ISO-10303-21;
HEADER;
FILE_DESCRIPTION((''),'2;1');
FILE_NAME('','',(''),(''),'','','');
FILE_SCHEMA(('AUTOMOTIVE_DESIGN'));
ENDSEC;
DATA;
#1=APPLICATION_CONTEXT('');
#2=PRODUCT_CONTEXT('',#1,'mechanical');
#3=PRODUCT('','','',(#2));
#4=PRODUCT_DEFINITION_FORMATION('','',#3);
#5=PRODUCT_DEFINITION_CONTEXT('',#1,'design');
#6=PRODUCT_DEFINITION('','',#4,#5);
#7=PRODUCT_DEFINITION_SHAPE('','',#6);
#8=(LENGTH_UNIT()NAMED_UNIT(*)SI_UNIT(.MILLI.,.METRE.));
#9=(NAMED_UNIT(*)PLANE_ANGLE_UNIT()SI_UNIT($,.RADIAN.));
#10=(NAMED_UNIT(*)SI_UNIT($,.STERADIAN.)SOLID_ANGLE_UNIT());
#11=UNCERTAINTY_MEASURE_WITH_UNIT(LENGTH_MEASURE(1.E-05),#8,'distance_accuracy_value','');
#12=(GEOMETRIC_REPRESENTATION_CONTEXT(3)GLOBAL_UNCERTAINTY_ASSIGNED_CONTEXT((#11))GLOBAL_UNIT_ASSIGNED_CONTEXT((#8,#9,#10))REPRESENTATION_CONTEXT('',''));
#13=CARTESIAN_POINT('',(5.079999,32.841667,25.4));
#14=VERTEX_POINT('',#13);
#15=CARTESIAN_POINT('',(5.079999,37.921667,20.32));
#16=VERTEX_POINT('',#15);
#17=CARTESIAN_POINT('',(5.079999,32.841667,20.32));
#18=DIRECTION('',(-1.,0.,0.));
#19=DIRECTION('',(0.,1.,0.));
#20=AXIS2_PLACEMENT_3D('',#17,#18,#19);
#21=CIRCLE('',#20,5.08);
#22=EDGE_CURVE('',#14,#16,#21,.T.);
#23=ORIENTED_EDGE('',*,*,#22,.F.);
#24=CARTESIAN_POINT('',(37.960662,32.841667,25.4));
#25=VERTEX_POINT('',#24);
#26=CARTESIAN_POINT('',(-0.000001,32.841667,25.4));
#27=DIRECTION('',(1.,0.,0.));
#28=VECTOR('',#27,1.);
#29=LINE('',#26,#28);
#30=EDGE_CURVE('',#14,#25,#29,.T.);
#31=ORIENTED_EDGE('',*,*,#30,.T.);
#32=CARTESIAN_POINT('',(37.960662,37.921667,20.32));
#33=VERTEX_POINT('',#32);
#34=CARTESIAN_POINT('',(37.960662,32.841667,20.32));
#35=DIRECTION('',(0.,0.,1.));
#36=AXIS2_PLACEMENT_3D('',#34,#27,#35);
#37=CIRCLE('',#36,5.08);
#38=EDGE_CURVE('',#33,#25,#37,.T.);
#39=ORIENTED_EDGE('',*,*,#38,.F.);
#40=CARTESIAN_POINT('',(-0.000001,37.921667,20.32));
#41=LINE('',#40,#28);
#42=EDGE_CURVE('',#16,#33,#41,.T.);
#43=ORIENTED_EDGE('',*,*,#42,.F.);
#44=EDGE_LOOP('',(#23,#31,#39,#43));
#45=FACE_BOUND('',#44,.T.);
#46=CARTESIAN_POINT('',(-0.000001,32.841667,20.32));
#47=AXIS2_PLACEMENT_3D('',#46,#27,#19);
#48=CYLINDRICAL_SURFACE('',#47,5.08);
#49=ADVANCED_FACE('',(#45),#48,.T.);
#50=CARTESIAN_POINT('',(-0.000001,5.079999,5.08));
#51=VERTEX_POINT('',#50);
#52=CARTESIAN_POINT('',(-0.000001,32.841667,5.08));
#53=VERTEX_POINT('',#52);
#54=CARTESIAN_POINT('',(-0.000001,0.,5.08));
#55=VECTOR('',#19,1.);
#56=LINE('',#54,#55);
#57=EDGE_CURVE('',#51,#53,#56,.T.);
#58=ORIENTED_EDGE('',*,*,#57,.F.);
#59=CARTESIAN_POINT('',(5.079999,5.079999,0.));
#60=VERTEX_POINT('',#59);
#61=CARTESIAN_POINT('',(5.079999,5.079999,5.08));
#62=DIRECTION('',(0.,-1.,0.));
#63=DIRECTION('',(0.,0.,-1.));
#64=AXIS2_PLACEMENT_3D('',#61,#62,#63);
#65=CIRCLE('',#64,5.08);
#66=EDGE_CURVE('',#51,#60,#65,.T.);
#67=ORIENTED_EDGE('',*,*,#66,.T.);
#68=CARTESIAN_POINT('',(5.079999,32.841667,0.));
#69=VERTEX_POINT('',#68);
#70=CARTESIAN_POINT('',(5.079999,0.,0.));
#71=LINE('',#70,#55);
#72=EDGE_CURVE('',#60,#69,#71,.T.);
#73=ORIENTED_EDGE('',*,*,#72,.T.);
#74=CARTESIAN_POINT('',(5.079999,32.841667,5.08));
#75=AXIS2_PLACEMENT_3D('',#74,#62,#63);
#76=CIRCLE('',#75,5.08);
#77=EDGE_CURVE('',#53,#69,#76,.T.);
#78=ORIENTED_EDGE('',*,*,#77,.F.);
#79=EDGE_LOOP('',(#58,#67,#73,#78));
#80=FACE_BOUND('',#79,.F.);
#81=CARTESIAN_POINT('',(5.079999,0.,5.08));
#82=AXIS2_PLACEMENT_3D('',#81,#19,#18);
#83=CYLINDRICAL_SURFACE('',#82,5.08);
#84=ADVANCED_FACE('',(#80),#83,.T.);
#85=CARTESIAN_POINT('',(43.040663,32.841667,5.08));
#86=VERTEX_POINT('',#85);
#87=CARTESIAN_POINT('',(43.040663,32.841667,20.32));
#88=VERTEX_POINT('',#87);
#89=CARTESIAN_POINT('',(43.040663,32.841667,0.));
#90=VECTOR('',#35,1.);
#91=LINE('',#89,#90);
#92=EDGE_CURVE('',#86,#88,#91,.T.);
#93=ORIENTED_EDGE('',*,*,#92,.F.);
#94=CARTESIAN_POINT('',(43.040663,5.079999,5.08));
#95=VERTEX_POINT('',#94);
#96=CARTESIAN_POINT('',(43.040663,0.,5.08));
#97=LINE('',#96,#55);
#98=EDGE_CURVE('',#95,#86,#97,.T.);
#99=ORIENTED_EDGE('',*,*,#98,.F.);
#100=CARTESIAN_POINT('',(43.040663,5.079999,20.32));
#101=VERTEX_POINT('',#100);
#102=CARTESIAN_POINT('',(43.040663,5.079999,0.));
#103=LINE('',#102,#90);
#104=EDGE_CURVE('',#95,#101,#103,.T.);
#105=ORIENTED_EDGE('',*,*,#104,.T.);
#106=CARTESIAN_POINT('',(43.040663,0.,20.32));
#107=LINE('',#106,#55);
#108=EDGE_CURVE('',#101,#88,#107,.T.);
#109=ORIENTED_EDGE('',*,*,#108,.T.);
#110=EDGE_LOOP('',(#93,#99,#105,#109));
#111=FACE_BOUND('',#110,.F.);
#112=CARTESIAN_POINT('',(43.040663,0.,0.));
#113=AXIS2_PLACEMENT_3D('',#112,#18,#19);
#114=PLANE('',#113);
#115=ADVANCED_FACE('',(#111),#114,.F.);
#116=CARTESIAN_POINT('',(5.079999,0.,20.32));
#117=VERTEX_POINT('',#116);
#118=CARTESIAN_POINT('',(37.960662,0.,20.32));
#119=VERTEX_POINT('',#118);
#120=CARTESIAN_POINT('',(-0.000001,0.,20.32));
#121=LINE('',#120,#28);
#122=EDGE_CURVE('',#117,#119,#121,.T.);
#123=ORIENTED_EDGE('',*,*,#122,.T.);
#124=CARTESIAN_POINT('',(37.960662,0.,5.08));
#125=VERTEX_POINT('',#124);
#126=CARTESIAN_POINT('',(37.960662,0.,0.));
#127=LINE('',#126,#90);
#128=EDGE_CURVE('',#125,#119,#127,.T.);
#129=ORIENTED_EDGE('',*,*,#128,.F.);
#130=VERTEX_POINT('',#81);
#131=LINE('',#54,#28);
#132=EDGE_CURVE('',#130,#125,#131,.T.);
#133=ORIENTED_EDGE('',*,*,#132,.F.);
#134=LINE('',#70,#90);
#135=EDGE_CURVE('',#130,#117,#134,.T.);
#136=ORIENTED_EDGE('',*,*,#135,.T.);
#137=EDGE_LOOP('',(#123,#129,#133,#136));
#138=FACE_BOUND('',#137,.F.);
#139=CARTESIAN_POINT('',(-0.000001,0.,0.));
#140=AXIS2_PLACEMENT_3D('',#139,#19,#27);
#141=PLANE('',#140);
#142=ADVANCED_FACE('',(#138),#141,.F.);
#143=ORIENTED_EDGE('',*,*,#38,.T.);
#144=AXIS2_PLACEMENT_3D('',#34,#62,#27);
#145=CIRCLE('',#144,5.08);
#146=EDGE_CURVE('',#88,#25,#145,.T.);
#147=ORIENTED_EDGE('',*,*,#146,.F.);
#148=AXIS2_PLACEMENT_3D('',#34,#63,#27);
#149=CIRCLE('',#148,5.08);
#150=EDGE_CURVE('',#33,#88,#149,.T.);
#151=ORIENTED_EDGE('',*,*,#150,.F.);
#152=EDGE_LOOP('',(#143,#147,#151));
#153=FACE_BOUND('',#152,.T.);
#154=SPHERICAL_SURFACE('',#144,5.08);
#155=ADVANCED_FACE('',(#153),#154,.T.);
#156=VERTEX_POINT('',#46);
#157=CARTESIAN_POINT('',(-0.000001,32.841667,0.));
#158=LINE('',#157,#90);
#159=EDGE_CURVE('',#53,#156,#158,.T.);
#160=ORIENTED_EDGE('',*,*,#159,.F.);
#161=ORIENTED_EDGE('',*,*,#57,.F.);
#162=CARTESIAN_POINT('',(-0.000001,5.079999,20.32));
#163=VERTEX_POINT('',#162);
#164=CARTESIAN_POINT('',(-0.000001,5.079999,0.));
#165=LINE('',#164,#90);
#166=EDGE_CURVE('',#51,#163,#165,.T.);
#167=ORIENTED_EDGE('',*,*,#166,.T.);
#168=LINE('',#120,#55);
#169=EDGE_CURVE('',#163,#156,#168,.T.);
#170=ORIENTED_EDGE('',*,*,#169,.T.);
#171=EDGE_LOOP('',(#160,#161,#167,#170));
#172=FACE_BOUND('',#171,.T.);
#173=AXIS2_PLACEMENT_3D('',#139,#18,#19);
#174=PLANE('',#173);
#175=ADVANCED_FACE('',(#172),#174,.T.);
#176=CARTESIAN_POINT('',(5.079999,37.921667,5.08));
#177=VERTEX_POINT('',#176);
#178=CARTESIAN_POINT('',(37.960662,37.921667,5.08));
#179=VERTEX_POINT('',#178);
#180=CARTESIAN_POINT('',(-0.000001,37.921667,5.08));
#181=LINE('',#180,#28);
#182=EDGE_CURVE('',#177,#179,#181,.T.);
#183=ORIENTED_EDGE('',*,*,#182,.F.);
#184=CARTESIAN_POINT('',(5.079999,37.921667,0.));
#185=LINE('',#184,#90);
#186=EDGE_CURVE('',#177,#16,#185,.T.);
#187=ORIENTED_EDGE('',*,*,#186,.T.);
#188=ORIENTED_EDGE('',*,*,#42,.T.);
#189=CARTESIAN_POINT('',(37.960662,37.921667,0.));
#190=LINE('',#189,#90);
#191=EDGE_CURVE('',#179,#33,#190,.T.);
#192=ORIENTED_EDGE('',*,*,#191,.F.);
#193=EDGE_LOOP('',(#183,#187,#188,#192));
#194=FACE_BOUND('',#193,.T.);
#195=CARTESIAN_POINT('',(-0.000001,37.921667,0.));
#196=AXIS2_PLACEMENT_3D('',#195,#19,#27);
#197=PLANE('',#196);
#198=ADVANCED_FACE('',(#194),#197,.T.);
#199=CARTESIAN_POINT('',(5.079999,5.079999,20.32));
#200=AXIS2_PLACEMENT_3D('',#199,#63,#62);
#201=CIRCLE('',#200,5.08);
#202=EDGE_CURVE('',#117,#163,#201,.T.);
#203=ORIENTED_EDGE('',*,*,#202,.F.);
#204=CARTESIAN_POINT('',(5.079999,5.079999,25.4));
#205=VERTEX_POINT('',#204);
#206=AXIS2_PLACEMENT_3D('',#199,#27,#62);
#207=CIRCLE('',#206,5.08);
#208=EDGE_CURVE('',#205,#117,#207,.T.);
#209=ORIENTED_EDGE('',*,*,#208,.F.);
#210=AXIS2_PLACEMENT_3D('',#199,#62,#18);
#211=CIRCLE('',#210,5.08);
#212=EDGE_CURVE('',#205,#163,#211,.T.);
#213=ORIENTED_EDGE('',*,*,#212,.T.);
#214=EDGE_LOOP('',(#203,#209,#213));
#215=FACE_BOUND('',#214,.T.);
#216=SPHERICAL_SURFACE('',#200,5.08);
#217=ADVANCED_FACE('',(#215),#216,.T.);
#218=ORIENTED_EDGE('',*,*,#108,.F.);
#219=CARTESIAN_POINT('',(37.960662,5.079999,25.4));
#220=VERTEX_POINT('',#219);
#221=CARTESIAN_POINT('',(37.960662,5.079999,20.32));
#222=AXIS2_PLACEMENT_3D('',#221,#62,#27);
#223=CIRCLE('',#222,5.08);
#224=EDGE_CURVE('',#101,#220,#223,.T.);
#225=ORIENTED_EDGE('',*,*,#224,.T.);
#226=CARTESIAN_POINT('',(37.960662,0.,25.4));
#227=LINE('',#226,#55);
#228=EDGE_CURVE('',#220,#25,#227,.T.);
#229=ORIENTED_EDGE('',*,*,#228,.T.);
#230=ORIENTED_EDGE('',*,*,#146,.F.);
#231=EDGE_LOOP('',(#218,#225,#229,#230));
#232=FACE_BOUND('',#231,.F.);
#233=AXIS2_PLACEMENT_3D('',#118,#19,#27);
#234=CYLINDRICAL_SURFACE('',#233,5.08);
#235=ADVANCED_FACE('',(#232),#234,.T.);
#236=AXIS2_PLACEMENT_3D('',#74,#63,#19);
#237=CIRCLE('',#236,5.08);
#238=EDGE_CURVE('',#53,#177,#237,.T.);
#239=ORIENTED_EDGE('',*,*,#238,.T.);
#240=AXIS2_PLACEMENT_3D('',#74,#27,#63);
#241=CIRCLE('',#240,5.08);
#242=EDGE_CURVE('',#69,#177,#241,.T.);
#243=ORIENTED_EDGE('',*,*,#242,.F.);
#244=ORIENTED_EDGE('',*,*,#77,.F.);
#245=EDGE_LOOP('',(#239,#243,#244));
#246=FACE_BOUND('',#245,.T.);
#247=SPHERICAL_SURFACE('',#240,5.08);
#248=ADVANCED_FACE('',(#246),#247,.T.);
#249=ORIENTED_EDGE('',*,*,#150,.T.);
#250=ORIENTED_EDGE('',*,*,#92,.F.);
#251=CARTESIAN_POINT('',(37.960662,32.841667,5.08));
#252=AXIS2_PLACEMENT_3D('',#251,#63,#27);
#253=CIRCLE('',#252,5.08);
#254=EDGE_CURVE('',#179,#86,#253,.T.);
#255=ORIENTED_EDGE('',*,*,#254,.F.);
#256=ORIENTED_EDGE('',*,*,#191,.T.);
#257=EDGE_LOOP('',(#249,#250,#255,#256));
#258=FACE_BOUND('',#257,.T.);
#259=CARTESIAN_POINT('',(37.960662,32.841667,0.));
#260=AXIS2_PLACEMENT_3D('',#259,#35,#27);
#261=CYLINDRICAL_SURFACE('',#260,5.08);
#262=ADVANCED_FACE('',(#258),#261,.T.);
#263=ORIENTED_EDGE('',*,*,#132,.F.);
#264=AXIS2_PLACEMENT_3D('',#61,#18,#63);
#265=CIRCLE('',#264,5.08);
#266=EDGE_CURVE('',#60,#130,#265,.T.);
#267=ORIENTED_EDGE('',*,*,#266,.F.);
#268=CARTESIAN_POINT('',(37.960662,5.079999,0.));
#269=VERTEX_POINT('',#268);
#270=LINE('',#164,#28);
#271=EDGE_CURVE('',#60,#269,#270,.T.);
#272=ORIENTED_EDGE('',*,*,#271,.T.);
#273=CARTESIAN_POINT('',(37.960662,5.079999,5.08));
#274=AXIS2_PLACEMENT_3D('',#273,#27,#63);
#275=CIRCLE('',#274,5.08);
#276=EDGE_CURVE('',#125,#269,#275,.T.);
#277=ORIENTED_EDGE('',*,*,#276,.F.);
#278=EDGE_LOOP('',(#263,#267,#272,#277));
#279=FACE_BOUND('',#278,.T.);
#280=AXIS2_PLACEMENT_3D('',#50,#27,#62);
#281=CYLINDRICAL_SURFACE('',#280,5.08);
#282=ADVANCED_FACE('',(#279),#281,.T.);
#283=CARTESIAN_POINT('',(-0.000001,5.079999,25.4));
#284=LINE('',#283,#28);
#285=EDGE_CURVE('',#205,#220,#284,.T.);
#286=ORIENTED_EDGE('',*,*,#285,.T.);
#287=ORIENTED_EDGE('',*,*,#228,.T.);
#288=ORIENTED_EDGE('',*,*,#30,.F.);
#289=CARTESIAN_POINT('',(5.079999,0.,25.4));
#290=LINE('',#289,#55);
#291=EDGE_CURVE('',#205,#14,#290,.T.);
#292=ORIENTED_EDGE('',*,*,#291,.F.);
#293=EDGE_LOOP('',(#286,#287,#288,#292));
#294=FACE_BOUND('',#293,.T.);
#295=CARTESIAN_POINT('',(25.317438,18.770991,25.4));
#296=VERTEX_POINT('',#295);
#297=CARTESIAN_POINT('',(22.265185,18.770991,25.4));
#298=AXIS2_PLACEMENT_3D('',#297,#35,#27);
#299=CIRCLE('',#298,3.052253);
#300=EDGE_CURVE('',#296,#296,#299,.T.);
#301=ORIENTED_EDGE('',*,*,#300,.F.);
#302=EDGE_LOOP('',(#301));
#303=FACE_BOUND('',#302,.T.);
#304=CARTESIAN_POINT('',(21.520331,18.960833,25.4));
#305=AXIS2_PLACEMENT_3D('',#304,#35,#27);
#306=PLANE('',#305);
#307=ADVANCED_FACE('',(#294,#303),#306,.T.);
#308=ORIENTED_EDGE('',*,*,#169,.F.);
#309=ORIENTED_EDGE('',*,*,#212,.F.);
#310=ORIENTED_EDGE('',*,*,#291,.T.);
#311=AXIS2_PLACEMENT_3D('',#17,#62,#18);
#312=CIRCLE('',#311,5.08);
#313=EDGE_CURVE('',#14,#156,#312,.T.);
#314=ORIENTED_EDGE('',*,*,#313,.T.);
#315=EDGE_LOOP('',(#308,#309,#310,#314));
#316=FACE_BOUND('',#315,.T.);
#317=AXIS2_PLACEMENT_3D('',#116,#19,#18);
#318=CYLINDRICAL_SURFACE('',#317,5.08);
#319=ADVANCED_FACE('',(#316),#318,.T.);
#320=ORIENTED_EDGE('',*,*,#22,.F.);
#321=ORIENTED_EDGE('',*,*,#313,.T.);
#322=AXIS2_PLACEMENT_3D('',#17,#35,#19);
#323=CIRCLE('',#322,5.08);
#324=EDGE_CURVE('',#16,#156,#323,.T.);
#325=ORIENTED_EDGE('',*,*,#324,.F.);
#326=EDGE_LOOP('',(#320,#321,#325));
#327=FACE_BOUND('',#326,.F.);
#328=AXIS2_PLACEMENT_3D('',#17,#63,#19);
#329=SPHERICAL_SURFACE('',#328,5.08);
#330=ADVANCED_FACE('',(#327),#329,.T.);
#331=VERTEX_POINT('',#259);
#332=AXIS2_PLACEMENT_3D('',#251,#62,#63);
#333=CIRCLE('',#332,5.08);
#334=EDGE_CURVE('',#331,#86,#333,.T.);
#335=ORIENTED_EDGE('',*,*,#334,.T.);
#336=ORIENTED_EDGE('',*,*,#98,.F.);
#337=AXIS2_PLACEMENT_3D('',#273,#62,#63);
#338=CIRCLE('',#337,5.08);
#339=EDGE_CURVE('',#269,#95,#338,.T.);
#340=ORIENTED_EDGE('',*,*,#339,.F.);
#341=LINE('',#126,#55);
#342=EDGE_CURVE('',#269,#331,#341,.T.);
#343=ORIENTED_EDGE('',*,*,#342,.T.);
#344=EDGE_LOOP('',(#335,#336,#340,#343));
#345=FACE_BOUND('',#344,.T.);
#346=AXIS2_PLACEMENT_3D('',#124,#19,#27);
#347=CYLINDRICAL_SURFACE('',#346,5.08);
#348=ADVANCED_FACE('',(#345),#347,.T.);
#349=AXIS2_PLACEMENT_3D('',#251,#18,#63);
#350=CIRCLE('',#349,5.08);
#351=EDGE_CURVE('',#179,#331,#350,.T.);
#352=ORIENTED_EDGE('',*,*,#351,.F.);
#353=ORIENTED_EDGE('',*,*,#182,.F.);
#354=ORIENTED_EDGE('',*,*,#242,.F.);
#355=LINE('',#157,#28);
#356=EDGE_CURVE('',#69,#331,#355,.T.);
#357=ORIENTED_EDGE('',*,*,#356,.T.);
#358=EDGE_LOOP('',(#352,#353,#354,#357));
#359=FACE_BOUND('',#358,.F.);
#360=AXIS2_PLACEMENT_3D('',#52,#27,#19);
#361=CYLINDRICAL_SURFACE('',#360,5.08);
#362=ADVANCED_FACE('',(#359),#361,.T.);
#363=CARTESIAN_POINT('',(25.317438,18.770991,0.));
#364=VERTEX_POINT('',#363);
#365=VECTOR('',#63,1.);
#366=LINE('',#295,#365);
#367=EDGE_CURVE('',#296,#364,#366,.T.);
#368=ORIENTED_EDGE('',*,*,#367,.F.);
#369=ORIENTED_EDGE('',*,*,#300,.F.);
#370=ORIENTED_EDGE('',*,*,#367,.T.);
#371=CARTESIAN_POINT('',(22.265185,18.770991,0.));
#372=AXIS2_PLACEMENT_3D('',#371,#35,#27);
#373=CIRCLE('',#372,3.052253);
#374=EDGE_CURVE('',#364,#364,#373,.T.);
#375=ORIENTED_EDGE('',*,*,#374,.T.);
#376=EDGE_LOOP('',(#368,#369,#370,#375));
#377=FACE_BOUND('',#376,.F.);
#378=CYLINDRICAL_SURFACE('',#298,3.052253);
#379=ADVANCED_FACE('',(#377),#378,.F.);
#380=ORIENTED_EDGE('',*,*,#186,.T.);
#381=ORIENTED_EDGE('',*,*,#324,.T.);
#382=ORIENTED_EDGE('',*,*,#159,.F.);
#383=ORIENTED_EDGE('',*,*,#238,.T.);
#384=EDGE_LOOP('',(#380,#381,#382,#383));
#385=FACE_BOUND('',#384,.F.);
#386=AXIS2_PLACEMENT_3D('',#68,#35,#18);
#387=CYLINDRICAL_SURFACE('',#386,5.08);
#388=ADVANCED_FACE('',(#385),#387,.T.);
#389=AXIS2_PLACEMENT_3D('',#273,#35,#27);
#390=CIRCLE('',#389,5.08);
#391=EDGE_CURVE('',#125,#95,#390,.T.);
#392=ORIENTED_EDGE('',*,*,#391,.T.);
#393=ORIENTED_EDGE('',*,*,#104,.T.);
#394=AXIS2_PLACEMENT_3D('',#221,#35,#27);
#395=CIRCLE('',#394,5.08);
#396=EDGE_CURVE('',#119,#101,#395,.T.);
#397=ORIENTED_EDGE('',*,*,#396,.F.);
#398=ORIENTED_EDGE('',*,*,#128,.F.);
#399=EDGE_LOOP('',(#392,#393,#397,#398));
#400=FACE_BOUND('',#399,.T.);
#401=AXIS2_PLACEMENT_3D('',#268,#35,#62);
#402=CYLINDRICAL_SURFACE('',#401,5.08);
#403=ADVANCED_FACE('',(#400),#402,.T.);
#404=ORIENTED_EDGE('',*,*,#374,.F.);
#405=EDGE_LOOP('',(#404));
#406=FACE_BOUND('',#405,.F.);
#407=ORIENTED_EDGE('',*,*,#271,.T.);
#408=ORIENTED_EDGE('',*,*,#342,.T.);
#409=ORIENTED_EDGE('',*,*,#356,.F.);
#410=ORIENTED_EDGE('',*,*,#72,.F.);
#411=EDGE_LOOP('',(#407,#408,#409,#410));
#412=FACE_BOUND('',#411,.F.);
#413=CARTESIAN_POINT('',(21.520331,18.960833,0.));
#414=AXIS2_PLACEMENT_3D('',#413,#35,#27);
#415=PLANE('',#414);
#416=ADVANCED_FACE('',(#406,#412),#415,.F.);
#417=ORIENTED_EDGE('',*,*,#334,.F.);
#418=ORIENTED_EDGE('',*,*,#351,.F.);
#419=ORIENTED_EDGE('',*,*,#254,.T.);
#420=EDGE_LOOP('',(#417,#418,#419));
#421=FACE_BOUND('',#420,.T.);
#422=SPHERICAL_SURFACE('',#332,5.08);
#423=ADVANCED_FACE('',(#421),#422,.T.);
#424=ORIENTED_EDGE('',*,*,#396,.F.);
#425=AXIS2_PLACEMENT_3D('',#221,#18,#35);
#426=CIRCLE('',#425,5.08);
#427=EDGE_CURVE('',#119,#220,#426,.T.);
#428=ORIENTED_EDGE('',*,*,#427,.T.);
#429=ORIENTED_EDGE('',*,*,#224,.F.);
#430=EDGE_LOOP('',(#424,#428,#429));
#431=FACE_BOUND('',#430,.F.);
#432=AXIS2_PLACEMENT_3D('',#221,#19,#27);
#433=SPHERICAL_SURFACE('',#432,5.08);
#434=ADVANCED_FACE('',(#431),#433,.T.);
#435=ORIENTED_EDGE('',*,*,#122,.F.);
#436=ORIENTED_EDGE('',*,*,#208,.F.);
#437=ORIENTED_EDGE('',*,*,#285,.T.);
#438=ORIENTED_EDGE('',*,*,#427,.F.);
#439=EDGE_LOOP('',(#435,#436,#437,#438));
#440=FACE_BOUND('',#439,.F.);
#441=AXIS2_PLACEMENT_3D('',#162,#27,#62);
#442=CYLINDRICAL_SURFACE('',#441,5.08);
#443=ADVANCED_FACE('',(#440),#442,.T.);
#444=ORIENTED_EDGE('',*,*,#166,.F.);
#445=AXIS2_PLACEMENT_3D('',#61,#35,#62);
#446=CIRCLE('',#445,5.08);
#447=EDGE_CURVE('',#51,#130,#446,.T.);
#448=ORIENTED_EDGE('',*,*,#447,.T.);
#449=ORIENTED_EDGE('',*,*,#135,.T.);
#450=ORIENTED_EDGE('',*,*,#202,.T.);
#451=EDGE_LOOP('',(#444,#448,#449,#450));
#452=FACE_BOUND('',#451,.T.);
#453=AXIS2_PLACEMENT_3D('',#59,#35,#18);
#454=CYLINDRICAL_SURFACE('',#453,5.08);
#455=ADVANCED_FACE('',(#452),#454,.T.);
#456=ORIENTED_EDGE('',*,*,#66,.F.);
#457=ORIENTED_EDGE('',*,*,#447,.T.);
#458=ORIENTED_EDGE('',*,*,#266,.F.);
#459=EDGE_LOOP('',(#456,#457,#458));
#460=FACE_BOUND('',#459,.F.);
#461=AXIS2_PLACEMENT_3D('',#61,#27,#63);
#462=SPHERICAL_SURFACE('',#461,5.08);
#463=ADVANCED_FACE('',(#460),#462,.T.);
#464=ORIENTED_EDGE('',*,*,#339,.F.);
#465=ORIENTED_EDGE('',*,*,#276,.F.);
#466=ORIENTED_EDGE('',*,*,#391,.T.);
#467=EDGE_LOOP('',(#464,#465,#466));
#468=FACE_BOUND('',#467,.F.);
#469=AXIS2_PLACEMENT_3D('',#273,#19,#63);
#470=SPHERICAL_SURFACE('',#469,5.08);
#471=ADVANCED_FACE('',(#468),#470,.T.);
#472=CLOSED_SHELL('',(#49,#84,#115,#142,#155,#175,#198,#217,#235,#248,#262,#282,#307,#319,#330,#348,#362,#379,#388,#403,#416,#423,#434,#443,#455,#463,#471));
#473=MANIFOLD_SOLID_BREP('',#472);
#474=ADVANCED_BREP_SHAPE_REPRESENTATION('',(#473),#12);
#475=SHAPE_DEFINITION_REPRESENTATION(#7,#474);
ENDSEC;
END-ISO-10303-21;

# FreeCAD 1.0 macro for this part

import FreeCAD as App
import Part
import Sketcher

V = App.Vector
Q = App.Units.Quantity


def add_polygon(sketch, points):
    """Adds a closed chain of lines whose ends are joined by coincident constraints."""
    first, n = sketch.GeometryCount, len(points)
    for a, b in zip(points, points[1:] + points[:1]):
        sketch.addGeometry(Part.LineSegment(App.Vector(*a, 0), App.Vector(*b, 0)), False)
    for i in range(n):
        sketch.addConstraint(Sketcher.Constraint("Coincident", first + i, 2, first + (i + 1) % n, 1))

doc = App.newDocument("Part")
body = doc.addObject("PartDesign::Body", "Body")

# Sketch on XY plane
sketch1 = doc.addObject("Sketcher::SketchObject", "Sketch")
body.addObject(sketch1)
sketch1.AttachmentSupport = (doc.XY_Plane, [""])
sketch1.MapMode = "FlatFace"
add_polygon(sketch1, [(0, 38), (0, 0), (43, 0), (43, 38)])  # lines 0-3
sketch1.addConstraint(Sketcher.Constraint("Vertical", 0))
sketch1.addConstraint(Sketcher.Constraint("Horizontal", 1))
sketch1.addConstraint(Sketcher.Constraint("Vertical", 2))
sketch1.addConstraint(Sketcher.Constraint("Horizontal", 3))
sketch1.addConstraint(Sketcher.Constraint("Coincident", 0, 2, -1, 1))
sketch1.addConstraint(Sketcher.Constraint("DistanceX", 1, 1, 1, 2, 43.040663))
sketch1.addConstraint(Sketcher.Constraint("DistanceY", 0, 2, 0, 1, 37.921667))
pad1 = doc.addObject("PartDesign::Pad", "Pad")
body.addObject(pad1)
pad1.Profile = sketch1
pad1.Length = Q("1 in")
doc.recompute()

fillet = doc.addObject("PartDesign::Fillet", "Fillet")
body.addObject(fillet)
fillet.Base = (pad1, ["Edge1"])
fillet.UseAllEdges = True
fillet.Radius = Q("0.2 in")

# Sketch on XY plane
sketch2 = doc.addObject("Sketcher::SketchObject", "Sketch001")
body.addObject(sketch2)
sketch2.AttachmentSupport = (doc.XY_Plane, [""])
sketch2.MapMode = "FlatFace"
sketch2.AttachmentOffset = App.Placement(V(0, 0, 1 * 25.4), App.Rotation())
sketch2.addGeometry(Part.Circle(V(22.3, 18.8, 0), V(0, 0, 1), 3.1), False)
sketch2.addConstraint(Sketcher.Constraint("Diameter", 0, 6.104506))
sketch2.addConstraint(Sketcher.Constraint("DistanceY", -1, 1, 0, 3, 18.770991))
sketch2.addConstraint(Sketcher.Constraint("DistanceX", -1, 1, 0, 3, 22.265185))
pocket1 = doc.addObject("PartDesign::Pocket", "Pocket")
body.addObject(pocket1)
pocket1.Profile = sketch2
pocket1.Length = Q("1 in")

doc.recompute()
